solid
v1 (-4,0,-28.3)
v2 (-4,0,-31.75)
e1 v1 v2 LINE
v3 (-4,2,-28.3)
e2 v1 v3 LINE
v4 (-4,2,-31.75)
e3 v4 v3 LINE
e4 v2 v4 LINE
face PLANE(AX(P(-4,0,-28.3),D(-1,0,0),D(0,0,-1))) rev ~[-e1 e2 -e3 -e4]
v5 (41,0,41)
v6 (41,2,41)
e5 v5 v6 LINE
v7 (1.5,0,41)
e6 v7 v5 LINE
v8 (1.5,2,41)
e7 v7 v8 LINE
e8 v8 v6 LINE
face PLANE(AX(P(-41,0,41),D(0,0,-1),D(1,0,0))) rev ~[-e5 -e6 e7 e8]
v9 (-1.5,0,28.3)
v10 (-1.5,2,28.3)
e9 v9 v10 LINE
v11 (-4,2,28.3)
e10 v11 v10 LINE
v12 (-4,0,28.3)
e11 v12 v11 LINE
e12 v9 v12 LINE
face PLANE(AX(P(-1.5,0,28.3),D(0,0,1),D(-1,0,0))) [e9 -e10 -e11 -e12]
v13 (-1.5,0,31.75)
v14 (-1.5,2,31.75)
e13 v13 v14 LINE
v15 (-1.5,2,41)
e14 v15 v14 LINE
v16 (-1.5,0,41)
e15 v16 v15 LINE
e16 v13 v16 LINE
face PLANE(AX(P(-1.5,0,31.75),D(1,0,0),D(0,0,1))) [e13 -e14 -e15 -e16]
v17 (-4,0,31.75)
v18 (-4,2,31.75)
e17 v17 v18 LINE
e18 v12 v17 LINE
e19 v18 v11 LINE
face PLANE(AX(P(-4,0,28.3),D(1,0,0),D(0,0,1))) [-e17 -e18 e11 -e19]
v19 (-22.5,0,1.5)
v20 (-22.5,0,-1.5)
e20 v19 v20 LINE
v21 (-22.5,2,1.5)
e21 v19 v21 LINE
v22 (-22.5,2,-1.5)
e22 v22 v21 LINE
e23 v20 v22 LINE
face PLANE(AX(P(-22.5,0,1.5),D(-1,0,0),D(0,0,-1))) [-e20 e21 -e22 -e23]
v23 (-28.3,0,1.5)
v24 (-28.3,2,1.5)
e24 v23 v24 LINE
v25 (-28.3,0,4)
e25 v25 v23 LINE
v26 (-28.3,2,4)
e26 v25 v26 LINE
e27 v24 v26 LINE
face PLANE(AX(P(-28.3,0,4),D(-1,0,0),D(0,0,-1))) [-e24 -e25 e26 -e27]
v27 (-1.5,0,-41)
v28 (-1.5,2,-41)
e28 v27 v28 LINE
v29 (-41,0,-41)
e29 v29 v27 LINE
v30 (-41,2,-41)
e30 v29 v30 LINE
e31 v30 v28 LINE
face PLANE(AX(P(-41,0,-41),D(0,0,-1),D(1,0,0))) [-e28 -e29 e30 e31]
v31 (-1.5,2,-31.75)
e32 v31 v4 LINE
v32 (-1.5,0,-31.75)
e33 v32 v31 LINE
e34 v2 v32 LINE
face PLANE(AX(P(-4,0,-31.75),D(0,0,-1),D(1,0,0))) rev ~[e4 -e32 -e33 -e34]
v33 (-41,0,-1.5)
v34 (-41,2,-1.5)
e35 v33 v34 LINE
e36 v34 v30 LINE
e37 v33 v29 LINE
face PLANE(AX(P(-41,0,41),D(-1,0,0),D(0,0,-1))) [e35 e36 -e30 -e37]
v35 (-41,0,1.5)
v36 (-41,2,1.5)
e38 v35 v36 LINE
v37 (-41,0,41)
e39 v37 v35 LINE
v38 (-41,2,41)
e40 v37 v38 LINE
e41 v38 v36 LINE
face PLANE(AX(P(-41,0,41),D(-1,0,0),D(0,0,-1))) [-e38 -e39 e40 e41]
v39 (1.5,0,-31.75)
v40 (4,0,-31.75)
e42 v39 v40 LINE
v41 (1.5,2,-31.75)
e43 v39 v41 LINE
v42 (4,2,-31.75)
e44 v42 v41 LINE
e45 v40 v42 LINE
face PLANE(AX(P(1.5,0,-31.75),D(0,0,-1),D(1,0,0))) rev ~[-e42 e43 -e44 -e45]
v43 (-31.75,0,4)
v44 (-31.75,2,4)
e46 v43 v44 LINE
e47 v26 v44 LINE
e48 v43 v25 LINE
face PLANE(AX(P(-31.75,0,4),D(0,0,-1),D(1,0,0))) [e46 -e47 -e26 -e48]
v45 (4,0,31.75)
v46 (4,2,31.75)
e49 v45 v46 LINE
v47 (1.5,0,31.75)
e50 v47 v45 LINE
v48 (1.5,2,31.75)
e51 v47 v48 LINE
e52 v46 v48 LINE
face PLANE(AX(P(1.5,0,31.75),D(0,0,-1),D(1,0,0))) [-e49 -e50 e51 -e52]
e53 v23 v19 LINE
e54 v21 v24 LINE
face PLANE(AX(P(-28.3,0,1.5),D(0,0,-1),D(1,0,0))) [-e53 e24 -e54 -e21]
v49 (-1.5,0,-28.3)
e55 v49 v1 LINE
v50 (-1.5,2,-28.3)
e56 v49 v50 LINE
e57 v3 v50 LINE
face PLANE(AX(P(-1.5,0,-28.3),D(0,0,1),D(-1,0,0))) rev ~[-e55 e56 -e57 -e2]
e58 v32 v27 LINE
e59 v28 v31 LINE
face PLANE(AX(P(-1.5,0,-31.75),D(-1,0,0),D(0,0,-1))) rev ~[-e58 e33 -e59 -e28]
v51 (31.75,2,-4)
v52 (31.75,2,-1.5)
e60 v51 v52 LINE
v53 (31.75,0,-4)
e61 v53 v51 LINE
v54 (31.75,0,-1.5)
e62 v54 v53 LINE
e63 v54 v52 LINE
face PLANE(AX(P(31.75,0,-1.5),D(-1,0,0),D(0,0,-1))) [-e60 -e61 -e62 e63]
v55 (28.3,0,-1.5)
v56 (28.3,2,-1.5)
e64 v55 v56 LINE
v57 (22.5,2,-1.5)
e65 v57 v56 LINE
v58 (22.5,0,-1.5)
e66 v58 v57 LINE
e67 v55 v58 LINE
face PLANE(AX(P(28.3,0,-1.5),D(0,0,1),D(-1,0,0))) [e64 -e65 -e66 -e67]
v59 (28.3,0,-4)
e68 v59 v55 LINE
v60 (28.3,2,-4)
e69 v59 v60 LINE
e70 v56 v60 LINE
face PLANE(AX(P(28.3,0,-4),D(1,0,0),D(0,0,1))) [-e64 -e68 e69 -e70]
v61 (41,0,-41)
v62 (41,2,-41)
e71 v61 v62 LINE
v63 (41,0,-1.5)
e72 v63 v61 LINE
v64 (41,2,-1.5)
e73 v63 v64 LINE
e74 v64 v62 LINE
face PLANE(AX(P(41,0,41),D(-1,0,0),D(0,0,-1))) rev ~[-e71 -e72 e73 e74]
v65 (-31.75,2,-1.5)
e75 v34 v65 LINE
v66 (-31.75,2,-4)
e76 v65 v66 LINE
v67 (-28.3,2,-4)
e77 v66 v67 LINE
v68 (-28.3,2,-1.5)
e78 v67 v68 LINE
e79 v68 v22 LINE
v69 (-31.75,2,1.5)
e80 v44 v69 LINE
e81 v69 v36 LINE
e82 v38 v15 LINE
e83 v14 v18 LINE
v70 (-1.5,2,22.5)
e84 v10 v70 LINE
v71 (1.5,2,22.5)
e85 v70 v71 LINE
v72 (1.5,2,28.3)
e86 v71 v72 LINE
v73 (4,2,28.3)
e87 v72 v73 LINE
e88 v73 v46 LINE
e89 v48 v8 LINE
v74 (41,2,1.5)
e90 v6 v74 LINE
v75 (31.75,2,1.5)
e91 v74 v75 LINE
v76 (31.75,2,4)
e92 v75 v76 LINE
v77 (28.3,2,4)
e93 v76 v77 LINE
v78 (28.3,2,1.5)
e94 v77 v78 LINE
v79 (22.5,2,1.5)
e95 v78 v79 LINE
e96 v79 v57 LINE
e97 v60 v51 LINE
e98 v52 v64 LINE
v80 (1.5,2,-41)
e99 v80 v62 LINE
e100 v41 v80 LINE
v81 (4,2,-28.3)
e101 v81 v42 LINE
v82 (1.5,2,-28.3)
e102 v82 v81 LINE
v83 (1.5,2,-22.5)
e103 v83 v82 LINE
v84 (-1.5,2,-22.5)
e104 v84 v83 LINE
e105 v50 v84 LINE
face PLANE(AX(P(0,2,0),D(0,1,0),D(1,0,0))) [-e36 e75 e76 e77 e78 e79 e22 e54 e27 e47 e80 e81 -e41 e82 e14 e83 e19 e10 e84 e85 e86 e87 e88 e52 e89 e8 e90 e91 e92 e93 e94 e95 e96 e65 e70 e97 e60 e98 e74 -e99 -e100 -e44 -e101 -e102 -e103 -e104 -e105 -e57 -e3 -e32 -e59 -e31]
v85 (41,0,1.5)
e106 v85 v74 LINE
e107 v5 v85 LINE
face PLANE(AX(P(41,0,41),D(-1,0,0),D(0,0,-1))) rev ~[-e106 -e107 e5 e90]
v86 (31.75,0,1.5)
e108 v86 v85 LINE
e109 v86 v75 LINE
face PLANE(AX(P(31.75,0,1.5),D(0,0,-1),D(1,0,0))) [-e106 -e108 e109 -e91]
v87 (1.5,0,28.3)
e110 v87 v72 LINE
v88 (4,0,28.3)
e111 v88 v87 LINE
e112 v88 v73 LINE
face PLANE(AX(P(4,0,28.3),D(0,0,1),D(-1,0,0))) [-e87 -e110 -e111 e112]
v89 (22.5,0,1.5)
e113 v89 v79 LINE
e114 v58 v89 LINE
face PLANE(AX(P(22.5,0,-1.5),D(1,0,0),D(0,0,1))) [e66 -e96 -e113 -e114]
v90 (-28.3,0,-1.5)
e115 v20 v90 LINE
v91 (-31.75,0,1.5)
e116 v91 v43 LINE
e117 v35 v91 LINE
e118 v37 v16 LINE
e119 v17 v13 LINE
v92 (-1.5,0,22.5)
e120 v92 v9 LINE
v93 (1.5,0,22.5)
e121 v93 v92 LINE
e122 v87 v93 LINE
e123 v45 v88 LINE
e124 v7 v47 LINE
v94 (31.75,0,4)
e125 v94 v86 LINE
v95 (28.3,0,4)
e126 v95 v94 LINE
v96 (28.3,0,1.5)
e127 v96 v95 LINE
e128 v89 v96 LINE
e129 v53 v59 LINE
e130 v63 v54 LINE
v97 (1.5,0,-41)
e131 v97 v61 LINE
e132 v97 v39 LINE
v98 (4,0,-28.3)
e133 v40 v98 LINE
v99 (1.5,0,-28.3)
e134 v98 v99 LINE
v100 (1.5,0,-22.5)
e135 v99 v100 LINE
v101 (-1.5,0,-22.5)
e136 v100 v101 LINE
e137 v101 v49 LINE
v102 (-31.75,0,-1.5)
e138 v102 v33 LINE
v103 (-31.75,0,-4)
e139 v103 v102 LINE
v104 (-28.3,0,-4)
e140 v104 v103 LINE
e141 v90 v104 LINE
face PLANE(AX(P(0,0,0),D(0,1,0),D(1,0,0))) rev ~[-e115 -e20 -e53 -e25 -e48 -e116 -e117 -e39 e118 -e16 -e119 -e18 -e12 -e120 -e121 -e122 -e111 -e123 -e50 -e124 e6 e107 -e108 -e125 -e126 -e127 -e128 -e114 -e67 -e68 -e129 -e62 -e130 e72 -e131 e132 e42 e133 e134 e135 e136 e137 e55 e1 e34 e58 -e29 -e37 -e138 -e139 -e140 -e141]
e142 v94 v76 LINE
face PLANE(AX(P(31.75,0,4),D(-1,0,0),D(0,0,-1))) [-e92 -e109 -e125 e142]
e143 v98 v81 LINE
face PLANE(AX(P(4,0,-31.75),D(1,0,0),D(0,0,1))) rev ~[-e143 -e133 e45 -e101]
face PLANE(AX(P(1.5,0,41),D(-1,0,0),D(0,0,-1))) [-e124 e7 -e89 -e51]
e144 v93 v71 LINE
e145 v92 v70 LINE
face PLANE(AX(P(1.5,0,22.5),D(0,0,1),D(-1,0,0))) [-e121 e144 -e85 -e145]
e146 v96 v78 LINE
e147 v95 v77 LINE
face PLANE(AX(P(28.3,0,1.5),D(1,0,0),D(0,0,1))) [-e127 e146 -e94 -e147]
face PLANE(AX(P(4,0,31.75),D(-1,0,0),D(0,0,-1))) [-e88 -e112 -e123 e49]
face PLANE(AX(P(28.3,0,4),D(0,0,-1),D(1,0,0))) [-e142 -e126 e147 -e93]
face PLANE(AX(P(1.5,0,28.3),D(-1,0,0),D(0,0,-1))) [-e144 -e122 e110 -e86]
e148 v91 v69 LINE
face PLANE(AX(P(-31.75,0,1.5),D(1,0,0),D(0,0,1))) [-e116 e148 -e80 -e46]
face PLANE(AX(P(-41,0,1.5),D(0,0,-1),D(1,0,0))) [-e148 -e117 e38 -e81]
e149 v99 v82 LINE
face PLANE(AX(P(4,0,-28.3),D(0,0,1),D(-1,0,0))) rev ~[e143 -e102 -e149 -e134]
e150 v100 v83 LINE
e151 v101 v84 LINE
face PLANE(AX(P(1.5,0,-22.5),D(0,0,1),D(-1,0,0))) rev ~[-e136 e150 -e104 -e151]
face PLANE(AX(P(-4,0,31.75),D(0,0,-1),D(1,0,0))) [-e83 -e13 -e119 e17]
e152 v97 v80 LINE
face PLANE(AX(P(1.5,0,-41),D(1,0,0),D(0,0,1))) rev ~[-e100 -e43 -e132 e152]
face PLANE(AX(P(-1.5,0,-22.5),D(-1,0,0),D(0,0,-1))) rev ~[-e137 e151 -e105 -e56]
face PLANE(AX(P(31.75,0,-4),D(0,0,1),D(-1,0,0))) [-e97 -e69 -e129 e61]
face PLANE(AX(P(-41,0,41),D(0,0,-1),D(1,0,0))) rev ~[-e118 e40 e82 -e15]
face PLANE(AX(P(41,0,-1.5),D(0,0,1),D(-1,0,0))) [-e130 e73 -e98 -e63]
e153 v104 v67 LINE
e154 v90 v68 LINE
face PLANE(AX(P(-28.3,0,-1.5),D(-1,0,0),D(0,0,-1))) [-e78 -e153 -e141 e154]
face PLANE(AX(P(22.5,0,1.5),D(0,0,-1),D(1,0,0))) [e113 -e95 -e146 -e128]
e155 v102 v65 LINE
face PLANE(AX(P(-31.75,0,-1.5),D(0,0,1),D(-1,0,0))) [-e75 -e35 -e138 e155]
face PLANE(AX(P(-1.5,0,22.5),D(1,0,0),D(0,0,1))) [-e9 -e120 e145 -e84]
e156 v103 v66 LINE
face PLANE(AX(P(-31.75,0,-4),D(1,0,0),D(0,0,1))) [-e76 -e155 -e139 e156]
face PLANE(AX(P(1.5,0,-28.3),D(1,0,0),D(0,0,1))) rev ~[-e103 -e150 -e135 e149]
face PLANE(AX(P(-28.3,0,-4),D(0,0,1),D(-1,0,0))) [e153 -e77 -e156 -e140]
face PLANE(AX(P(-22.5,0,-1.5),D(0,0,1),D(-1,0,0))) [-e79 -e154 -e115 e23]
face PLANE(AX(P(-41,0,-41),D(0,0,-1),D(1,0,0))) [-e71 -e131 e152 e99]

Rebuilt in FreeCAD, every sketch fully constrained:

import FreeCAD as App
import Part
import Sketcher
Q = App.Units.Quantity


def add_polygon(sketch, points):
    """Adds a closed chain of lines whose ends are joined by coincident constraints."""
    first, n = sketch.GeometryCount, len(points)
    for a, b in zip(points, points[1:] + points[:1]):
        sketch.addGeometry(Part.LineSegment(App.Vector(*a, 0), App.Vector(*b, 0)), False)
    for i in range(n):
        sketch.addConstraint(Sketcher.Constraint("Coincident", first + i, 2, first + (i + 1) % n, 1))

doc = App.newDocument("Part")
body = doc.addObject("PartDesign::Body", "Body")

# Sketch on XZ plane
sketch1 = body.newObject("Sketcher::SketchObject", "Sketch")
sketch1.AttachmentSupport = (doc.getObject("XZ_Plane"), [""])
sketch1.MapMode = "FlatFace"
add_polygon(sketch1, [(-41, -41), (-41, 41), (41, 41), (41, -41)])  # lines 0-3
sketch1.addConstraint([
    Sketcher.Constraint("Vertical", 0),
    Sketcher.Constraint("Horizontal", 1),
    Sketcher.Constraint("Vertical", 2),
    Sketcher.Constraint("Horizontal", 3),
    Sketcher.Constraint("Symmetric", 0, 2, 2, 2, -1, 1),
    Sketcher.Constraint("Equal", 3, 0),
    Sketcher.Constraint("DistanceX", 1, 1, 1, 2, Q("82 mm")),
])
pad1 = body.newObject("PartDesign::Pad", "Pad")
pad1.Profile = sketch1
pad1.Length = 2
pad1.Reversed = True

# Sketch on XZ plane
sketch2 = body.newObject("Sketcher::SketchObject", "Sketch001")
sketch2.AttachmentSupport = (doc.getObject("XZ_Plane"), [""])
sketch2.MapMode = "FlatFace"
add_polygon(sketch2, [(1.5, -22.5), (-1.5, -22.5), (-1.5, -28.3), (-4, -28.3), (-4, -31.8), (-1.5, -31.8), (-1.5, -41), (1.5, -41), (1.5, -31.8), (4, -31.8), (4, -28.3), (1.5, -28.3)])  # lines 0-11
add_polygon(sketch2, [(-28.3, 1.5), (-28.3, 4), (-31.8, 4), (-31.8, 1.5), (-41, 1.5), (-41, -1.5), (-31.8, -1.5), (-31.8, -4), (-28.3, -4), (-28.3, -1.5), (-22.5, -1.5), (-22.5, 1.5)])  # lines 12-23
add_polygon(sketch2, [(1.5, 28.3), (4, 28.3), (4, 31.8), (1.5, 31.8), (1.5, 41), (-1.5, 41), (-1.5, 31.8), (-4, 31.8), (-4, 28.3), (-1.5, 28.3), (-1.5, 22.5), (1.5, 22.5)])  # lines 24-35
add_polygon(sketch2, [(28.3, -1.5), (28.3, -4), (31.8, -4), (31.8, -1.5), (41, -1.5), (41, 1.5), (31.8, 1.5), (31.8, 4), (28.3, 4), (28.3, 1.5), (22.5, 1.5), (22.5, -1.5)])  # lines 36-47
sketch2.addConstraint([
    Sketcher.Constraint("Horizontal", 0),
    Sketcher.Constraint("Vertical", 1),
    Sketcher.Constraint("Horizontal", 2),
    Sketcher.Constraint("Vertical", 3),
    Sketcher.Constraint("Horizontal", 4),
    Sketcher.Constraint("Vertical", 5),
    Sketcher.Constraint("Horizontal", 6),
    Sketcher.Constraint("Vertical", 7),
    Sketcher.Constraint("Horizontal", 8),
    Sketcher.Constraint("Vertical", 9),
    Sketcher.Constraint("Horizontal", 10),
    Sketcher.Constraint("Vertical", 11),
    Sketcher.Constraint("Vertical", 12),
    Sketcher.Constraint("Horizontal", 13),
    Sketcher.Constraint("Vertical", 14),
    Sketcher.Constraint("Horizontal", 15),
    Sketcher.Constraint("Vertical", 16),
    Sketcher.Constraint("Horizontal", 17),
    Sketcher.Constraint("Vertical", 18),
    Sketcher.Constraint("Horizontal", 19),
    Sketcher.Constraint("Vertical", 20),
    Sketcher.Constraint("Horizontal", 21),
    Sketcher.Constraint("Vertical", 22),
    Sketcher.Constraint("Horizontal", 23),
    Sketcher.Constraint("Horizontal", 24),
    Sketcher.Constraint("Vertical", 25),
    Sketcher.Constraint("Horizontal", 26),
    Sketcher.Constraint("Vertical", 27),
    Sketcher.Constraint("Horizontal", 28),
    Sketcher.Constraint("Vertical", 29),
    Sketcher.Constraint("Horizontal", 30),
    Sketcher.Constraint("Vertical", 31),
    Sketcher.Constraint("Horizontal", 32),
    Sketcher.Constraint("Vertical", 33),
    Sketcher.Constraint("Horizontal", 34),
    Sketcher.Constraint("Vertical", 35),
    Sketcher.Constraint("Vertical", 36),
    Sketcher.Constraint("Horizontal", 37),
    Sketcher.Constraint("Vertical", 38),
    Sketcher.Constraint("Horizontal", 39),
    Sketcher.Constraint("Vertical", 40),
    Sketcher.Constraint("Horizontal", 41),
    Sketcher.Constraint("Vertical", 42),
    Sketcher.Constraint("Horizontal", 43),
    Sketcher.Constraint("Vertical", 44),
    Sketcher.Constraint("Horizontal", 45),
    Sketcher.Constraint("Vertical", 46),
    Sketcher.Constraint("Horizontal", 47),
    Sketcher.Constraint("Symmetric", 2, 2, 24, 2, -1, 1),
    Sketcher.Constraint("Symmetric", 4, 2, 26, 2, -1, 1),
    Sketcher.Constraint("Symmetric", 6, 2, 28, 2, -1, 1),
    Sketcher.Constraint("Symmetric", 8, 2, 30, 2, -1, 1),
    Sketcher.Constraint("Symmetric", 10, 2, 32, 2, -1, 1),
    Sketcher.Constraint("Symmetric", 0, 2, 34, 2, -1, 1),
    Sketcher.Constraint("Symmetric", 12, 2, 36, 2, -1, 1),
    Sketcher.Constraint("Symmetric", 14, 2, 38, 2, -1, 1),
    Sketcher.Constraint("Symmetric", 16, 2, 40, 2, -1, 1),
    Sketcher.Constraint("Symmetric", 18, 2, 42, 2, -1, 1),
    Sketcher.Constraint("Symmetric", 20, 2, 44, 2, -1, 1),
    Sketcher.Constraint("Symmetric", 22, 2, 46, 2, -1, 1),
    Sketcher.Constraint("Symmetric", 4, 2, 7, 2, -2),
    Sketcher.Constraint("Symmetric", 2, 2, 9, 2, -2),
    Sketcher.Constraint("Symmetric", 19, 2, 36, 2, -2),
    Sketcher.Constraint("Symmetric", 17, 2, 38, 2, -2),
    Sketcher.Constraint("Horizontal", 17, 2, 20, 2),
    Sketcher.Constraint("Horizontal", 15, 2, 22, 2),
    Sketcher.Constraint("Vertical", 1, 2, 4, 2),
    Sketcher.Constraint("Vertical", 7, 2, 10, 2),
    Sketcher.Constraint("Equal", 47, 1),
    Sketcher.Constraint("Equal", 43, 3),
    Sketcher.Constraint("Equal", 41, 5),
    Sketcher.Constraint("Equal", 32, 12),
    Sketcher.Constraint("Equal", 34, 16),
    Sketcher.Constraint("DistanceX", 0, 2, 0, 1, Q("3 mm")),
    Sketcher.Constraint("DistanceX", 2, 2, 2, 1, Q("2.5 mm")),
    Sketcher.Constraint("DistanceX", 21, 1, 21, 2, Q("5.8 mm")),
    Sketcher.Constraint("DistanceY", 5, 2, -1, 1, Q("41 mm")),
    Sketcher.Constraint("DistanceX", 15, 2, -1, 1, Q("41 mm")),
    Sketcher.Constraint("DistanceY", 0, 2, 14, 2, Q("24 mm")),
    Sketcher.Constraint("DistanceX", 13, 2, 13, 1, Q("3.45 mm")),
])
pocket1 = body.newObject("PartDesign::Pocket", "Pocket")
pocket1.Profile = sketch2
pocket1.Length = 10

doc.recompute()
